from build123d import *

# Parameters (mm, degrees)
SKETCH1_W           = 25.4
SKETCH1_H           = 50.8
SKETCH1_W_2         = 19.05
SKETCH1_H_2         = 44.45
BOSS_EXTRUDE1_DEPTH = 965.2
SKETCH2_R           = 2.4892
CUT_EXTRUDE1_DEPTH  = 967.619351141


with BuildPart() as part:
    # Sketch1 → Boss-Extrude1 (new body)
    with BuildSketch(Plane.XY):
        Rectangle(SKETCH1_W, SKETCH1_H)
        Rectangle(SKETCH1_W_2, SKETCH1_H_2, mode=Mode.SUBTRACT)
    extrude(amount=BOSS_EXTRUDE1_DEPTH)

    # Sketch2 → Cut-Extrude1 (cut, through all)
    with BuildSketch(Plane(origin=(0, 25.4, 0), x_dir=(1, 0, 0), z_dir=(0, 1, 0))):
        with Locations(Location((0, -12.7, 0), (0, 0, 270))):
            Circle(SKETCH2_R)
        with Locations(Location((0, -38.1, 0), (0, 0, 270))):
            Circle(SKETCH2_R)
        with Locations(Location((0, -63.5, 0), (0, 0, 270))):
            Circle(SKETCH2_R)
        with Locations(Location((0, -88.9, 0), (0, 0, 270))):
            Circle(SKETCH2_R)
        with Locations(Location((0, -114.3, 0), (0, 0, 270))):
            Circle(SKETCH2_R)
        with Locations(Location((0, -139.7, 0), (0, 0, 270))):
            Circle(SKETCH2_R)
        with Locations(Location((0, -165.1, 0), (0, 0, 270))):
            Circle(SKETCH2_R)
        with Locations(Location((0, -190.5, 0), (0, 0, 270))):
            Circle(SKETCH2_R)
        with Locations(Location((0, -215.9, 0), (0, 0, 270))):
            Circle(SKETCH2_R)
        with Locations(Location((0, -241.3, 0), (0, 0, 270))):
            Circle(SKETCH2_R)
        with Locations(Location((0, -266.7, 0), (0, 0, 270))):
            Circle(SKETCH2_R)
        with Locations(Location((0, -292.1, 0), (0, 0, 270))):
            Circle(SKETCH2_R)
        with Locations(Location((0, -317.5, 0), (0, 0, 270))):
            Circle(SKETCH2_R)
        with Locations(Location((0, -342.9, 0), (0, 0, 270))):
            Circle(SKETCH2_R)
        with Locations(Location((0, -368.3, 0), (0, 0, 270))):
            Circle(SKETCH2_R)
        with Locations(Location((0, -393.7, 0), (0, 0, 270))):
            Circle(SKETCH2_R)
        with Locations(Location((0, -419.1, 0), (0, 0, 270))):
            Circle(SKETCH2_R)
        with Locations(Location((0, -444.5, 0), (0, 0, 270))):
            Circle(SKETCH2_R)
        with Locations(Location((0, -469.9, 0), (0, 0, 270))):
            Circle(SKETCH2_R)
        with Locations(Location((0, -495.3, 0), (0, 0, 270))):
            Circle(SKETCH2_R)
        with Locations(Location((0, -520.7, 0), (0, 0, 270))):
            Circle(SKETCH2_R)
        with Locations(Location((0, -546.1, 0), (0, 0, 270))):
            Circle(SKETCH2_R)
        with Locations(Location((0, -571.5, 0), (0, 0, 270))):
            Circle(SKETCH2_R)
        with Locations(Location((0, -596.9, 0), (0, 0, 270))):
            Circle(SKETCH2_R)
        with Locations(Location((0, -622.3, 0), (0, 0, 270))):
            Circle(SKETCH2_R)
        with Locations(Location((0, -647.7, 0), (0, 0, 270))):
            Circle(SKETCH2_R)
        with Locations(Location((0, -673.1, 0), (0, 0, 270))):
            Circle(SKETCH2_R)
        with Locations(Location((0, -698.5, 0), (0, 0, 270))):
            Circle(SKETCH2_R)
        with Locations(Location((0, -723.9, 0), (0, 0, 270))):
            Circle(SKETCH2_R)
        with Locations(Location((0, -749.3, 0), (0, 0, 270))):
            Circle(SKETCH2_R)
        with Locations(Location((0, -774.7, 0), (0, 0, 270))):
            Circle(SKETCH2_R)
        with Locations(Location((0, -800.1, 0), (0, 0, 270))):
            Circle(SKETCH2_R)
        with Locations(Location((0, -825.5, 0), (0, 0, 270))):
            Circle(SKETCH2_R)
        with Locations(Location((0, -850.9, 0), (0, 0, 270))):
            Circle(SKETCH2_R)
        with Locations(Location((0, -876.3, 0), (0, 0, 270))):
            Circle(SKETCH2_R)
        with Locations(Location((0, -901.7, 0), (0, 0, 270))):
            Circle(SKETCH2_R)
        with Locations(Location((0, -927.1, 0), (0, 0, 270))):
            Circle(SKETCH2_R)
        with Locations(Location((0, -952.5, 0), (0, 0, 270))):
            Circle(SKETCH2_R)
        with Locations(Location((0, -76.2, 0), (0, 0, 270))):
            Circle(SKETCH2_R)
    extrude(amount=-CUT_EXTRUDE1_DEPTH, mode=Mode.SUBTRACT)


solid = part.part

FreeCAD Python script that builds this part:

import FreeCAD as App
import Part
import Sketcher
Q = App.Units.Quantity


def add_polygon(sketch, points):
    """Adds a closed chain of lines whose ends are joined by coincident constraints."""
    first, n = sketch.GeometryCount, len(points)
    for a, b in zip(points, points[1:] + points[:1]):
        sketch.addGeometry(Part.LineSegment(App.Vector(*a, 0), App.Vector(*b, 0)), False)
    for i in range(n):
        sketch.addConstraint(Sketcher.Constraint("Coincident", first + i, 2, first + (i + 1) % n, 1))

doc = App.newDocument("Part")
body = doc.addObject("PartDesign::Body", "Body")

sketch1 = doc.addObject("Sketcher::SketchObject", "Sketch")
body.addObject(sketch1)
sketch1.AttachmentSupport = (doc.XY_Plane, [""])
sketch1.MapMode = "FlatFace"
add_polygon(sketch1, [(-12.7, 25.4), (-12.7, -25.4), (12.7, -25.4), (12.7, 25.4)])
add_polygon(sketch1, [(9.525, -22.225), (-9.525, -22.225), (-9.525, 22.225), (9.525, 22.225)])
sketch1.addConstraint(Sketcher.Constraint("Vertical", 0))
sketch1.addConstraint(Sketcher.Constraint("Horizontal", 1))
sketch1.addConstraint(Sketcher.Constraint("Vertical", 2))
sketch1.addConstraint(Sketcher.Constraint("Horizontal", 3))
sketch1.addConstraint(Sketcher.Constraint("Horizontal", 4))
sketch1.addConstraint(Sketcher.Constraint("Vertical", 5))
sketch1.addConstraint(Sketcher.Constraint("Horizontal", 6))
sketch1.addConstraint(Sketcher.Constraint("Vertical", 7))
sketch1.addConstraint(Sketcher.Constraint("Symmetric", 0, 2, 2, 2, -1, 1))
sketch1.addConstraint(Sketcher.Constraint("Symmetric", 4, 2, 6, 2, -1, 1))
sketch1.addConstraint(Sketcher.Constraint("DistanceX", 1, 1, 1, 2, Q("1 in")))
sketch1.addConstraint(Sketcher.Constraint("DistanceY", 0, 2, 0, 1, Q("2 in")))
sketch1.addConstraint(Sketcher.Constraint("DistanceX", 4, 2, 4, 1, Q("0.75 in")))
sketch1.addConstraint(Sketcher.Constraint("DistanceY", 5, 1, 5, 2, Q("1.75 in")))
pad1 = doc.addObject("PartDesign::Pad", "Pad")
body.addObject(pad1)
pad1.Profile = sketch1
pad1.Length = Q("38 in")

sketch2 = doc.addObject("Sketcher::SketchObject", "Sketch001")
body.addObject(sketch2)
sketch2.AttachmentSupport = (doc.XZ_Plane, [""])
sketch2.MapMode = "FlatFace"
sketch2.AttachmentOffset = App.Placement(App.Vector(0, 0, -1 * 25.4), App.Rotation())
sketch2.addGeometry(Part.Circle(App.Vector(0, 12.7, 0), App.Vector(0, 0, 1), 2.4892), False)
sketch2.addGeometry(Part.Circle(App.Vector(0, 38.1, 0), App.Vector(0, 0, 1), 2.4892), False)
sketch2.addGeometry(Part.Circle(App.Vector(0, 63.5, 0), App.Vector(0, 0, 1), 2.4892), False)
sketch2.addGeometry(Part.Circle(App.Vector(0, 88.9, 0), App.Vector(0, 0, 1), 2.4892), False)
sketch2.addGeometry(Part.Circle(App.Vector(0, 114.3, 0), App.Vector(0, 0, 1), 2.4892), False)
sketch2.addGeometry(Part.Circle(App.Vector(0, 139.7, 0), App.Vector(0, 0, 1), 2.4892), False)
sketch2.addGeometry(Part.Circle(App.Vector(0, 165.1, 0), App.Vector(0, 0, 1), 2.4892), False)
sketch2.addGeometry(Part.Circle(App.Vector(0, 190.5, 0), App.Vector(0, 0, 1), 2.4892), False)
sketch2.addGeometry(Part.Circle(App.Vector(0, 215.9, 0), App.Vector(0, 0, 1), 2.4892), False)
sketch2.addGeometry(Part.Circle(App.Vector(0, 241.3, 0), App.Vector(0, 0, 1), 2.4892), False)
sketch2.addGeometry(Part.Circle(App.Vector(0, 266.7, 0), App.Vector(0, 0, 1), 2.4892), False)
sketch2.addGeometry(Part.Circle(App.Vector(0, 292.1, 0), App.Vector(0, 0, 1), 2.4892), False)
sketch2.addGeometry(Part.Circle(App.Vector(0, 317.5, 0), App.Vector(0, 0, 1), 2.4892), False)
sketch2.addGeometry(Part.Circle(App.Vector(0, 342.9, 0), App.Vector(0, 0, 1), 2.4892), False)
sketch2.addGeometry(Part.Circle(App.Vector(0, 368.3, 0), App.Vector(0, 0, 1), 2.4892), False)
sketch2.addGeometry(Part.Circle(App.Vector(0, 393.7, 0), App.Vector(0, 0, 1), 2.4892), False)
sketch2.addGeometry(Part.Circle(App.Vector(0, 419.1, 0), App.Vector(0, 0, 1), 2.4892), False)
sketch2.addGeometry(Part.Circle(App.Vector(0, 444.5, 0), App.Vector(0, 0, 1), 2.4892), False)
sketch2.addGeometry(Part.Circle(App.Vector(0, 469.9, 0), App.Vector(0, 0, 1), 2.4892), False)
sketch2.addGeometry(Part.Circle(App.Vector(0, 495.3, 0), App.Vector(0, 0, 1), 2.4892), False)
sketch2.addGeometry(Part.Circle(App.Vector(0, 520.7, 0), App.Vector(0, 0, 1), 2.4892), False)
sketch2.addGeometry(Part.Circle(App.Vector(0, 546.1, 0), App.Vector(0, 0, 1), 2.4892), False)
sketch2.addGeometry(Part.Circle(App.Vector(0, 571.5, 0), App.Vector(0, 0, 1), 2.4892), False)
sketch2.addGeometry(Part.Circle(App.Vector(0, 596.9, 0), App.Vector(0, 0, 1), 2.4892), False)
sketch2.addGeometry(Part.Circle(App.Vector(0, 622.3, 0), App.Vector(0, 0, 1), 2.4892), False)
sketch2.addGeometry(Part.Circle(App.Vector(0, 647.7, 0), App.Vector(0, 0, 1), 2.4892), False)
sketch2.addGeometry(Part.Circle(App.Vector(0, 673.1, 0), App.Vector(0, 0, 1), 2.4892), False)
sketch2.addGeometry(Part.Circle(App.Vector(0, 698.5, 0), App.Vector(0, 0, 1), 2.4892), False)
sketch2.addGeometry(Part.Circle(App.Vector(0, 723.9, 0), App.Vector(0, 0, 1), 2.4892), False)
sketch2.addGeometry(Part.Circle(App.Vector(0, 749.3, 0), App.Vector(0, 0, 1), 2.4892), False)
sketch2.addGeometry(Part.Circle(App.Vector(0, 774.7, 0), App.Vector(0, 0, 1), 2.4892), False)
sketch2.addGeometry(Part.Circle(App.Vector(0, 800.1, 0), App.Vector(0, 0, 1), 2.4892), False)
sketch2.addGeometry(Part.Circle(App.Vector(0, 825.5, 0), App.Vector(0, 0, 1), 2.4892), False)
sketch2.addGeometry(Part.Circle(App.Vector(0, 850.9, 0), App.Vector(0, 0, 1), 2.4892), False)
sketch2.addGeometry(Part.Circle(App.Vector(0, 876.3, 0), App.Vector(0, 0, 1), 2.4892), False)
sketch2.addGeometry(Part.Circle(App.Vector(0, 901.7, 0), App.Vector(0, 0, 1), 2.4892), False)
sketch2.addGeometry(Part.Circle(App.Vector(0, 927.1, 0), App.Vector(0, 0, 1), 2.4892), False)
sketch2.addGeometry(Part.Circle(App.Vector(0, 952.5, 0), App.Vector(0, 0, 1), 2.4892), False)
sketch2.addGeometry(Part.Circle(App.Vector(0, 76.2, 0), App.Vector(0, 0, 1), 2.4892), False)
sketch2.addConstraint(Sketcher.Constraint("Equal", 0, 1))
sketch2.addConstraint(Sketcher.Constraint("Equal", 1, 2))
sketch2.addConstraint(Sketcher.Constraint("Equal", 2, 3))
sketch2.addConstraint(Sketcher.Constraint("Equal", 3, 4))
sketch2.addConstraint(Sketcher.Constraint("Equal", 4, 5))
sketch2.addConstraint(Sketcher.Constraint("Equal", 5, 6))
sketch2.addConstraint(Sketcher.Constraint("Equal", 6, 7))
sketch2.addConstraint(Sketcher.Constraint("Equal", 7, 8))
sketch2.addConstraint(Sketcher.Constraint("Equal", 8, 9))
sketch2.addConstraint(Sketcher.Constraint("Equal", 9, 10))
sketch2.addConstraint(Sketcher.Constraint("Equal", 10, 11))
sketch2.addConstraint(Sketcher.Constraint("Equal", 11, 12))
sketch2.addConstraint(Sketcher.Constraint("Equal", 12, 13))
sketch2.addConstraint(Sketcher.Constraint("Equal", 13, 14))
sketch2.addConstraint(Sketcher.Constraint("Equal", 14, 15))
sketch2.addConstraint(Sketcher.Constraint("Equal", 15, 16))
sketch2.addConstraint(Sketcher.Constraint("Equal", 16, 17))
sketch2.addConstraint(Sketcher.Constraint("Equal", 17, 18))
sketch2.addConstraint(Sketcher.Constraint("Equal", 18, 19))
sketch2.addConstraint(Sketcher.Constraint("Equal", 19, 20))
sketch2.addConstraint(Sketcher.Constraint("Equal", 20, 21))
sketch2.addConstraint(Sketcher.Constraint("Equal", 21, 22))
sketch2.addConstraint(Sketcher.Constraint("Equal", 22, 23))
sketch2.addConstraint(Sketcher.Constraint("Equal", 23, 24))
sketch2.addConstraint(Sketcher.Constraint("Equal", 24, 25))
sketch2.addConstraint(Sketcher.Constraint("Equal", 25, 26))
sketch2.addConstraint(Sketcher.Constraint("Equal", 26, 27))
sketch2.addConstraint(Sketcher.Constraint("Equal", 27, 28))
sketch2.addConstraint(Sketcher.Constraint("Equal", 28, 29))
sketch2.addConstraint(Sketcher.Constraint("Equal", 29, 30))
sketch2.addConstraint(Sketcher.Constraint("Equal", 30, 31))
sketch2.addConstraint(Sketcher.Constraint("Equal", 31, 32))
sketch2.addConstraint(Sketcher.Constraint("Equal", 32, 33))
sketch2.addConstraint(Sketcher.Constraint("Equal", 33, 34))
sketch2.addConstraint(Sketcher.Constraint("Equal", 34, 35))
sketch2.addConstraint(Sketcher.Constraint("Equal", 35, 36))
sketch2.addConstraint(Sketcher.Constraint("Equal", 36, 37))
sketch2.addConstraint(Sketcher.Constraint("Equal", 37, 38))
sketch2.addConstraint(Sketcher.Constraint("PointOnObject", 0, 3, -2))
sketch2.addConstraint(Sketcher.Constraint("PointOnObject", 1, 3, -2))
sketch2.addConstraint(Sketcher.Constraint("PointOnObject", 2, 3, -2))
sketch2.addConstraint(Sketcher.Constraint("PointOnObject", 3, 3, -2))
sketch2.addConstraint(Sketcher.Constraint("PointOnObject", 4, 3, -2))
sketch2.addConstraint(Sketcher.Constraint("PointOnObject", 5, 3, -2))
sketch2.addConstraint(Sketcher.Constraint("PointOnObject", 6, 3, -2))
sketch2.addConstraint(Sketcher.Constraint("PointOnObject", 7, 3, -2))
sketch2.addConstraint(Sketcher.Constraint("PointOnObject", 8, 3, -2))
sketch2.addConstraint(Sketcher.Constraint("PointOnObject", 9, 3, -2))
sketch2.addConstraint(Sketcher.Constraint("PointOnObject", 10, 3, -2))
sketch2.addConstraint(Sketcher.Constraint("PointOnObject", 11, 3, -2))
sketch2.addConstraint(Sketcher.Constraint("PointOnObject", 12, 3, -2))
sketch2.addConstraint(Sketcher.Constraint("PointOnObject", 13, 3, -2))
sketch2.addConstraint(Sketcher.Constraint("PointOnObject", 14, 3, -2))
sketch2.addConstraint(Sketcher.Constraint("PointOnObject", 15, 3, -2))
sketch2.addConstraint(Sketcher.Constraint("PointOnObject", 16, 3, -2))
sketch2.addConstraint(Sketcher.Constraint("PointOnObject", 17, 3, -2))
sketch2.addConstraint(Sketcher.Constraint("PointOnObject", 18, 3, -2))
sketch2.addConstraint(Sketcher.Constraint("PointOnObject", 19, 3, -2))
sketch2.addConstraint(Sketcher.Constraint("PointOnObject", 20, 3, -2))
sketch2.addConstraint(Sketcher.Constraint("PointOnObject", 21, 3, -2))
sketch2.addConstraint(Sketcher.Constraint("PointOnObject", 22, 3, -2))
sketch2.addConstraint(Sketcher.Constraint("PointOnObject", 23, 3, -2))
sketch2.addConstraint(Sketcher.Constraint("PointOnObject", 24, 3, -2))
sketch2.addConstraint(Sketcher.Constraint("PointOnObject", 25, 3, -2))
sketch2.addConstraint(Sketcher.Constraint("PointOnObject", 26, 3, -2))
sketch2.addConstraint(Sketcher.Constraint("PointOnObject", 27, 3, -2))
sketch2.addConstraint(Sketcher.Constraint("PointOnObject", 28, 3, -2))
sketch2.addConstraint(Sketcher.Constraint("PointOnObject", 29, 3, -2))
sketch2.addConstraint(Sketcher.Constraint("PointOnObject", 30, 3, -2))
sketch2.addConstraint(Sketcher.Constraint("PointOnObject", 31, 3, -2))
sketch2.addConstraint(Sketcher.Constraint("PointOnObject", 32, 3, -2))
sketch2.addConstraint(Sketcher.Constraint("PointOnObject", 33, 3, -2))
sketch2.addConstraint(Sketcher.Constraint("PointOnObject", 34, 3, -2))
sketch2.addConstraint(Sketcher.Constraint("PointOnObject", 35, 3, -2))
sketch2.addConstraint(Sketcher.Constraint("PointOnObject", 36, 3, -2))
sketch2.addConstraint(Sketcher.Constraint("PointOnObject", 37, 3, -2))
sketch2.addConstraint(Sketcher.Constraint("PointOnObject", 38, 3, -2))
sketch2.addConstraint(Sketcher.Constraint("Diameter", 0, Q("0.196 in")))
sketch2.addConstraint(Sketcher.Constraint("DistanceY", -1, 1, 38, 3, Q("3 in")))
sketch2.addConstraint(Sketcher.Constraint("DistanceY", 0, 3, 1, 3, Q("1 in")))
sketch2.addConstraint(Sketcher.Constraint("DistanceY", 1, 3, 2, 3, Q("1 in")))
sketch2.addConstraint(Sketcher.Constraint("DistanceY", 2, 3, 3, 3, Q("1 in")))
sketch2.addConstraint(Sketcher.Constraint("DistanceY", 3, 3, 4, 3, Q("1 in")))
sketch2.addConstraint(Sketcher.Constraint("DistanceY", 4, 3, 5, 3, Q("1 in")))
sketch2.addConstraint(Sketcher.Constraint("DistanceY", 5, 3, 6, 3, Q("1 in")))
sketch2.addConstraint(Sketcher.Constraint("DistanceY", 6, 3, 7, 3, Q("1 in")))
sketch2.addConstraint(Sketcher.Constraint("DistanceY", 7, 3, 8, 3, Q("1 in")))
sketch2.addConstraint(Sketcher.Constraint("DistanceY", 8, 3, 9, 3, Q("1 in")))
sketch2.addConstraint(Sketcher.Constraint("DistanceY", 9, 3, 10, 3, Q("1 in")))
sketch2.addConstraint(Sketcher.Constraint("DistanceY", 10, 3, 11, 3, Q("1 in")))
sketch2.addConstraint(Sketcher.Constraint("DistanceY", 11, 3, 12, 3, Q("1 in")))
sketch2.addConstraint(Sketcher.Constraint("DistanceY", 12, 3, 13, 3, Q("1 in")))
sketch2.addConstraint(Sketcher.Constraint("DistanceY", 13, 3, 14, 3, Q("1 in")))
sketch2.addConstraint(Sketcher.Constraint("DistanceY", 14, 3, 15, 3, Q("1 in")))
sketch2.addConstraint(Sketcher.Constraint("DistanceY", 15, 3, 16, 3, Q("1 in")))
sketch2.addConstraint(Sketcher.Constraint("DistanceY", 16, 3, 17, 3, Q("1 in")))
sketch2.addConstraint(Sketcher.Constraint("DistanceY", 17, 3, 18, 3, Q("1 in")))
sketch2.addConstraint(Sketcher.Constraint("DistanceY", 18, 3, 19, 3, Q("1 in")))
sketch2.addConstraint(Sketcher.Constraint("DistanceY", 19, 3, 20, 3, Q("1 in")))
sketch2.addConstraint(Sketcher.Constraint("DistanceY", 20, 3, 21, 3, Q("1 in")))
sketch2.addConstraint(Sketcher.Constraint("DistanceY", 21, 3, 22, 3, Q("1 in")))
sketch2.addConstraint(Sketcher.Constraint("DistanceY", 22, 3, 23, 3, Q("1 in")))
sketch2.addConstraint(Sketcher.Constraint("DistanceY", 23, 3, 24, 3, Q("1 in")))
sketch2.addConstraint(Sketcher.Constraint("DistanceY", 24, 3, 25, 3, Q("1 in")))
sketch2.addConstraint(Sketcher.Constraint("DistanceY", 25, 3, 26, 3, Q("1 in")))
sketch2.addConstraint(Sketcher.Constraint("DistanceY", 26, 3, 27, 3, Q("1 in")))
sketch2.addConstraint(Sketcher.Constraint("DistanceY", 27, 3, 28, 3, Q("1 in")))
sketch2.addConstraint(Sketcher.Constraint("DistanceY", 28, 3, 29, 3, Q("1 in")))
sketch2.addConstraint(Sketcher.Constraint("DistanceY", 29, 3, 30, 3, Q("1 in")))
sketch2.addConstraint(Sketcher.Constraint("DistanceY", 30, 3, 31, 3, Q("1 in")))
sketch2.addConstraint(Sketcher.Constraint("DistanceY", 31, 3, 32, 3, Q("1 in")))
sketch2.addConstraint(Sketcher.Constraint("DistanceY", 32, 3, 33, 3, Q("1 in")))
sketch2.addConstraint(Sketcher.Constraint("DistanceY", 33, 3, 34, 3, Q("1 in")))
sketch2.addConstraint(Sketcher.Constraint("DistanceY", 34, 3, 35, 3, Q("1 in")))
sketch2.addConstraint(Sketcher.Constraint("DistanceY", 35, 3, 36, 3, Q("1 in")))
sketch2.addConstraint(Sketcher.Constraint("DistanceY", 36, 3, 37, 3, Q("1 in")))
sketch2.addConstraint(Sketcher.Constraint("DistanceY", -1, 1, 0, 3, Q("0.5 in")))
pocket1 = doc.addObject("PartDesign::Pocket", "Pocket")
body.addObject(pocket1)
pocket1.Profile = sketch2
pocket1.Type = "ThroughAll"
pocket1.Reversed = True

doc.recompute()
